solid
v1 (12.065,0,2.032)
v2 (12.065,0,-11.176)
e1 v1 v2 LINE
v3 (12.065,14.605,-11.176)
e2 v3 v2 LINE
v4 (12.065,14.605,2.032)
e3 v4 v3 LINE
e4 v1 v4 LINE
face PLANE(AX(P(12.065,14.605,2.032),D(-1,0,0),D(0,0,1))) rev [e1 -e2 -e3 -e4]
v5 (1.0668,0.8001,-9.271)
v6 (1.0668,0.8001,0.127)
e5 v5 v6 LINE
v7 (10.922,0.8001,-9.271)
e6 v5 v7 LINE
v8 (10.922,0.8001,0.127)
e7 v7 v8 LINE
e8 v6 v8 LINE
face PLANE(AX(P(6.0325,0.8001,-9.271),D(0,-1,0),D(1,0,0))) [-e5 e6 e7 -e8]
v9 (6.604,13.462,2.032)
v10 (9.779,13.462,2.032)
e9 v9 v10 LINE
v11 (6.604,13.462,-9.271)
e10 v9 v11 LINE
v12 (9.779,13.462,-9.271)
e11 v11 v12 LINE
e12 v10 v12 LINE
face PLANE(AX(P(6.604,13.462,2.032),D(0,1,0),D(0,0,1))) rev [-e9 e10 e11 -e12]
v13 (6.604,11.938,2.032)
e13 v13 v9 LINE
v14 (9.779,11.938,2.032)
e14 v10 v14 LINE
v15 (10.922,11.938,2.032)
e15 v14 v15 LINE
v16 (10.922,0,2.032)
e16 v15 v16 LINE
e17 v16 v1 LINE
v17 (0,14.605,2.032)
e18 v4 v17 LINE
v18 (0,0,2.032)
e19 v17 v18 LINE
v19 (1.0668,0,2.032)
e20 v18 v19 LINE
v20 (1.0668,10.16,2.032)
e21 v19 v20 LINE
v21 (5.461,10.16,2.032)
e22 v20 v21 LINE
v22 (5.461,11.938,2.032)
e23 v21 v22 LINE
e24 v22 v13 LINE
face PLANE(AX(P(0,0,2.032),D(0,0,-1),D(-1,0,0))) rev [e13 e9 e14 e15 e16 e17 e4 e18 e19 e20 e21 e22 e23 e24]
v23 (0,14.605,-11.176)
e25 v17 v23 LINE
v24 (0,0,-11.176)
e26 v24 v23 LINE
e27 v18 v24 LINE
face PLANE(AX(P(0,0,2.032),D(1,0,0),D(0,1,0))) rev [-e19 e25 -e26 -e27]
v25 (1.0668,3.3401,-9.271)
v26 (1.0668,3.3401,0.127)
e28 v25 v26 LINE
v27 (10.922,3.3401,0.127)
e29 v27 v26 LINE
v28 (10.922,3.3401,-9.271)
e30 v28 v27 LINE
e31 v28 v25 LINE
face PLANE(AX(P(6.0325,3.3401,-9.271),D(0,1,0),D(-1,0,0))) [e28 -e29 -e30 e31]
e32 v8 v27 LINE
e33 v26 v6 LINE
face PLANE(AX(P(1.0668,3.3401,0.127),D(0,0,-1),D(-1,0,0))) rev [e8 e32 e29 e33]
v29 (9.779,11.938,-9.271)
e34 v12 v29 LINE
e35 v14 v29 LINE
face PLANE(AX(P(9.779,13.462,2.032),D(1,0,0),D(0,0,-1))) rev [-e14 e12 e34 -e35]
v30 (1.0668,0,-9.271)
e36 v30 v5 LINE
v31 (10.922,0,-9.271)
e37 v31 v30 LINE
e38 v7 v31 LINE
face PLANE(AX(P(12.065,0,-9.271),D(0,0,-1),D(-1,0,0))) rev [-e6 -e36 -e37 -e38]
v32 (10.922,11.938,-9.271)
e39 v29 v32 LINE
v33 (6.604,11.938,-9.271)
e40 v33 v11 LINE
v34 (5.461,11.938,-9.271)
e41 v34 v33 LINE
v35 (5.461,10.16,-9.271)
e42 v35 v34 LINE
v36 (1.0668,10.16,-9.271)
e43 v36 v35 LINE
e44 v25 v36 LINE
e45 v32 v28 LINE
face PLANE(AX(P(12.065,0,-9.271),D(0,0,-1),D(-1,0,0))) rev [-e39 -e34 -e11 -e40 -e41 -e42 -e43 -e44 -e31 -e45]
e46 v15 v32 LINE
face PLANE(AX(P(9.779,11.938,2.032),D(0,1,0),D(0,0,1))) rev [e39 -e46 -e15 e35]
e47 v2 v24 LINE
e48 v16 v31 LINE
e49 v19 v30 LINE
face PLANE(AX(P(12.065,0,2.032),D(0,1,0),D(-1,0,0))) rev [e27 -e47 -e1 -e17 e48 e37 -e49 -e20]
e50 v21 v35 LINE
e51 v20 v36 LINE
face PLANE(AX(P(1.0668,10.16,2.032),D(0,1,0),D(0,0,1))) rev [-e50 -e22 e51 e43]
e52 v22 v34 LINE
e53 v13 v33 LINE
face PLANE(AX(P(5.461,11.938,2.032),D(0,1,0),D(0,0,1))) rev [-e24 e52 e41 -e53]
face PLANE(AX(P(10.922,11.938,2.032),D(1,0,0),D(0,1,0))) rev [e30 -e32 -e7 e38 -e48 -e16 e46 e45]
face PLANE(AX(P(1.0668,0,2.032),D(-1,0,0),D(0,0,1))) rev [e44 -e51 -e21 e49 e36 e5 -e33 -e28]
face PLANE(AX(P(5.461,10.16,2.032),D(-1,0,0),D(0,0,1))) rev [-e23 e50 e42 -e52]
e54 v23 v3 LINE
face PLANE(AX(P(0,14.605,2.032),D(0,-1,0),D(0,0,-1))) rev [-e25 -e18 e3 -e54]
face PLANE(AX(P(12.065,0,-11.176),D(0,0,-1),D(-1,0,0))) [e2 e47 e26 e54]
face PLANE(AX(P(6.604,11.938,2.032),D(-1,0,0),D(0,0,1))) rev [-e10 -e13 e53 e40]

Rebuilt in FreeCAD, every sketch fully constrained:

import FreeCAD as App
import Part
import Sketcher
Q = App.Units.Quantity

doc = App.newDocument("Part")
body = doc.addObject("PartDesign::Body", "Body")

# Sketch on XY plane
sketch1 = doc.addObject("Sketcher::SketchObject", "Sketch")
body.addObject(sketch1)
sketch1.AttachmentSupport = (doc.XY_Plane, [""])
sketch1.MapMode = "FlatFace"
sketch1.addGeometry([
    Part.LineSegment(App.Vector(0, 14.605, 0), App.Vector(0, 0, 0)),  # 0
    Part.LineSegment(App.Vector(0, 0, 0), App.Vector(1.0668, 0, 0)),  # 1
    Part.LineSegment(App.Vector(1.0668, 0, 0), App.Vector(1.0668, 10.16, 0)),  # 2
    Part.LineSegment(App.Vector(1.0668, 10.16, 0), App.Vector(5.461, 10.16, 0)),  # 3
    Part.LineSegment(App.Vector(5.461, 10.16, 0), App.Vector(5.461, 11.938, 0)),  # 4
    Part.LineSegment(App.Vector(5.461, 11.938, 0), App.Vector(6.604, 11.938, 0)),  # 5
    Part.LineSegment(App.Vector(6.604, 11.938, 0), App.Vector(6.604, 13.462, 0)),  # 6
    Part.LineSegment(App.Vector(6.604, 13.462, 0), App.Vector(9.779, 13.462, 0)),  # 7
    Part.LineSegment(App.Vector(9.779, 13.462, 0), App.Vector(9.779, 11.938, 0)),  # 8
    Part.LineSegment(App.Vector(9.779, 11.938, 0), App.Vector(10.922, 11.938, 0)),  # 9
    Part.LineSegment(App.Vector(10.922, 11.938, 0), App.Vector(10.922, 0, 0)),  # 10
    Part.LineSegment(App.Vector(10.922, 0, 0), App.Vector(12.065, 0, 0)),  # 11
    Part.LineSegment(App.Vector(12.065, 0, 0), App.Vector(12.065, 14.605, 0)),  # 12
    Part.LineSegment(App.Vector(12.065, 14.605, 0), App.Vector(0, 14.605, 0)),  # 13
], False)
sketch1.addConstraint([
    Sketcher.Constraint("Coincident", 0, 2, 1, 1),
    Sketcher.Constraint("Coincident", 1, 2, 2, 1),
    Sketcher.Constraint("Coincident", 2, 2, 3, 1),
    Sketcher.Constraint("Coincident", 3, 2, 4, 1),
    Sketcher.Constraint("Coincident", 4, 2, 5, 1),
    Sketcher.Constraint("Coincident", 5, 2, 6, 1),
    Sketcher.Constraint("Coincident", 6, 2, 7, 1),
    Sketcher.Constraint("Coincident", 7, 2, 8, 1),
    Sketcher.Constraint("Coincident", 8, 2, 9, 1),
    Sketcher.Constraint("Coincident", 9, 2, 10, 1),
    Sketcher.Constraint("Coincident", 10, 2, 11, 1),
    Sketcher.Constraint("Coincident", 11, 2, 12, 1),
    Sketcher.Constraint("Coincident", 12, 2, 13, 1),
    Sketcher.Constraint("Coincident", 13, 2, 0, 1),
    Sketcher.Constraint("Vertical", 0),
    Sketcher.Constraint("Horizontal", 1),
    Sketcher.Constraint("Vertical", 2),
    Sketcher.Constraint("Horizontal", 3),
    Sketcher.Constraint("Vertical", 4),
    Sketcher.Constraint("Horizontal", 5),
    Sketcher.Constraint("Vertical", 6),
    Sketcher.Constraint("Horizontal", 7),
    Sketcher.Constraint("Vertical", 8),
    Sketcher.Constraint("Horizontal", 9),
    Sketcher.Constraint("Vertical", 10),
    Sketcher.Constraint("Horizontal", 11),
    Sketcher.Constraint("Vertical", 12),
    Sketcher.Constraint("Horizontal", 13),
    Sketcher.Constraint("Coincident", 0, 2, -1, 1),
    Sketcher.Constraint("PointOnObject", 10, 2, -1),
    Sketcher.Constraint("Horizontal", 5, 2, 8, 2),
    Sketcher.Constraint("Equal", 5, 9),
    Sketcher.Constraint("Equal", 9, 11),
    Sketcher.Constraint("DistanceY", 2, 1, 2, 2, Q("0.4 in")),
    Sketcher.Constraint("DistanceY", 4, 1, 4, 2, Q("0.07 in")),
    Sketcher.Constraint("DistanceY", 6, 1, 6, 2, Q("0.06 in")),
    Sketcher.Constraint("DistanceX", 1, 1, 1, 2, Q("0.042 in")),
    Sketcher.Constraint("DistanceX", 3, 1, 3, 2, Q("0.173 in")),
    Sketcher.Constraint("DistanceX", 5, 1, 5, 2, Q("0.045 in")),
    Sketcher.Constraint("DistanceX", 7, 1, 7, 2, Q("0.125 in")),
    Sketcher.Constraint("DistanceY", 0, 2, 0, 1, Q("0.575 in")),
])
pad1 = doc.addObject("PartDesign::Pad", "Pad")
body.addObject(pad1)
pad1.Profile = sketch1
pad1.Length = Q("0.08 in")

# Sketch on XY plane
sketch2 = doc.addObject("Sketcher::SketchObject", "Sketch001")
body.addObject(sketch2)
sketch2.AttachmentSupport = (doc.XY_Plane, [""])
sketch2.MapMode = "FlatFace"
sketch2.AttachmentOffset = App.Placement(App.Vector(0, 0, 0.08 * 25.4), App.Rotation())
sketch2.addGeometry([
    Part.LineSegment(App.Vector(0, 14.605, 0), App.Vector(0, 0, 0)),  # 0
    Part.LineSegment(App.Vector(0, 0, 0), App.Vector(1.0668, 0, 0)),  # 1
    Part.LineSegment(App.Vector(1.0668, 0, 0), App.Vector(1.0668, 0.8001, 0)),  # 2
    Part.LineSegment(App.Vector(1.0668, 0.8001, 0), App.Vector(10.922, 0.8001, 0)),  # 3
    Part.LineSegment(App.Vector(10.922, 0.8001, 0), App.Vector(10.922, 0, 0)),  # 4
    Part.LineSegment(App.Vector(10.922, 0, 0), App.Vector(12.065, 0, 0)),  # 5
    Part.LineSegment(App.Vector(12.065, 0, 0), App.Vector(12.065, 14.605, 0)),  # 6
    Part.LineSegment(App.Vector(12.065, 14.605, 0), App.Vector(0, 14.605, 0)),  # 7
    Part.LineSegment(App.Vector(1.0668, 3.3401, 0), App.Vector(1.0668, 10.16, 0)),  # 8
    Part.LineSegment(App.Vector(1.0668, 10.16, 0), App.Vector(5.461, 10.16, 0)),  # 9
    Part.LineSegment(App.Vector(5.461, 10.16, 0), App.Vector(5.461, 11.938, 0)),  # 10
    Part.LineSegment(App.Vector(5.461, 11.938, 0), App.Vector(6.604, 11.938, 0)),  # 11
    Part.LineSegment(App.Vector(6.604, 11.938, 0), App.Vector(6.604, 13.462, 0)),  # 12
    Part.LineSegment(App.Vector(6.604, 13.462, 0), App.Vector(9.779, 13.462, 0)),  # 13
    Part.LineSegment(App.Vector(9.779, 13.462, 0), App.Vector(9.779, 11.938, 0)),  # 14
    Part.LineSegment(App.Vector(9.779, 11.938, 0), App.Vector(10.922, 11.938, 0)),  # 15
    Part.LineSegment(App.Vector(10.922, 11.938, 0), App.Vector(10.922, 3.3401, 0)),  # 16
    Part.LineSegment(App.Vector(10.922, 3.3401, 0), App.Vector(1.0668, 3.3401, 0)),  # 17
], False)
sketch2.addConstraint([
    Sketcher.Constraint("Coincident", 0, 2, 1, 1),
    Sketcher.Constraint("Coincident", 1, 2, 2, 1),
    Sketcher.Constraint("Coincident", 2, 2, 3, 1),
    Sketcher.Constraint("Coincident", 3, 2, 4, 1),
    Sketcher.Constraint("Coincident", 4, 2, 5, 1),
    Sketcher.Constraint("Coincident", 5, 2, 6, 1),
    Sketcher.Constraint("Coincident", 6, 2, 7, 1),
    Sketcher.Constraint("Coincident", 7, 2, 0, 1),
    Sketcher.Constraint("Coincident", 8, 2, 9, 1),
    Sketcher.Constraint("Coincident", 9, 2, 10, 1),
    Sketcher.Constraint("Coincident", 10, 2, 11, 1),
    Sketcher.Constraint("Coincident", 11, 2, 12, 1),
    Sketcher.Constraint("Coincident", 12, 2, 13, 1),
    Sketcher.Constraint("Coincident", 13, 2, 14, 1),
    Sketcher.Constraint("Coincident", 14, 2, 15, 1),
    Sketcher.Constraint("Coincident", 15, 2, 16, 1),
    Sketcher.Constraint("Coincident", 16, 2, 17, 1),
    Sketcher.Constraint("Coincident", 17, 2, 8, 1),
    Sketcher.Constraint("Vertical", 0),
    Sketcher.Constraint("Horizontal", 1),
    Sketcher.Constraint("Vertical", 2),
    Sketcher.Constraint("Horizontal", 3),
    Sketcher.Constraint("Vertical", 4),
    Sketcher.Constraint("Horizontal", 5),
    Sketcher.Constraint("Vertical", 6),
    Sketcher.Constraint("Horizontal", 7),
    Sketcher.Constraint("Vertical", 8),
    Sketcher.Constraint("Horizontal", 9),
    Sketcher.Constraint("Vertical", 10),
    Sketcher.Constraint("Horizontal", 11),
    Sketcher.Constraint("Vertical", 12),
    Sketcher.Constraint("Horizontal", 13),
    Sketcher.Constraint("Vertical", 14),
    Sketcher.Constraint("Horizontal", 15),
    Sketcher.Constraint("Vertical", 16),
    Sketcher.Constraint("Horizontal", 17),
    Sketcher.Constraint("Coincident", 0, 2, -1, 1),
    Sketcher.Constraint("PointOnObject", 4, 2, -1),
    Sketcher.Constraint("Horizontal", 11, 2, 14, 2),
    Sketcher.Constraint("Vertical", 2, 2, 8, 2),
    Sketcher.Constraint("Vertical", 4, 2, 15, 2),
    Sketcher.Constraint("Equal", 5, 11),
    Sketcher.Constraint("Equal", 11, 15),
    Sketcher.Constraint("DistanceY", 10, 1, 10, 2, Q("0.07 in")),
    Sketcher.Constraint("DistanceY", 12, 1, 12, 2, Q("0.06 in")),
    Sketcher.Constraint("DistanceY", -1, 1, 8, 2, Q("0.4 in")),
    Sketcher.Constraint("DistanceY", 3, 2, 16, 2, Q("0.1 in")),
    Sketcher.Constraint("DistanceX", 1, 1, 1, 2, Q("0.042 in")),
    Sketcher.Constraint("DistanceX", 3, 1, 3, 2, Q("0.388 in")),
    Sketcher.Constraint("DistanceX", 5, 1, 5, 2, Q("0.045 in")),
    Sketcher.Constraint("DistanceX", 9, 1, 9, 2, Q("0.173 in")),
    Sketcher.Constraint("DistanceY", 0, 2, 0, 1, Q("0.575 in")),
    Sketcher.Constraint("DistanceY", 2, 1, 2, 2, Q("0.0315 in")),
])
pad2 = doc.addObject("PartDesign::Pad", "Pad001")
body.addObject(pad2)
pad2.Profile = sketch2
pad2.Length = Q("0.445 in")
pad2.Reversed = True

# Sketch on XY plane
sketch3 = doc.addObject("Sketcher::SketchObject", "Sketch002")
body.addObject(sketch3)
sketch3.AttachmentSupport = (doc.XY_Plane, [""])
sketch3.MapMode = "FlatFace"
sketch3.AttachmentOffset = App.Placement(App.Vector(0, 0, 0.08 * 25.4), App.Rotation())
sketch3.addGeometry([
    Part.LineSegment(App.Vector(1.0668, 3.3401, 0), App.Vector(1.0668, 0.8001, 0)),
    Part.LineSegment(App.Vector(1.0668, 0.8001, 0), App.Vector(10.922, 0.8001, 0)),
    Part.LineSegment(App.Vector(10.922, 0.8001, 0), App.Vector(10.922, 3.3401, 0)),
    Part.LineSegment(App.Vector(10.922, 3.3401, 0), App.Vector(1.0668, 3.3401, 0)),
], False)
sketch3.addConstraint([
    Sketcher.Constraint("Coincident", 0, 2, 1, 1),
    Sketcher.Constraint("Coincident", 1, 2, 2, 1),
    Sketcher.Constraint("Coincident", 2, 2, 3, 1),
    Sketcher.Constraint("Coincident", 3, 2, 0, 1),
    Sketcher.Constraint("Vertical", 0),
    Sketcher.Constraint("Horizontal", 1),
    Sketcher.Constraint("Vertical", 2),
    Sketcher.Constraint("Horizontal", 3),
    Sketcher.Constraint("DistanceY", 0, 2, 0, 1, Q("0.1 in")),
    Sketcher.Constraint("DistanceX", 1, 1, 1, 2, Q("0.388 in")),
    Sketcher.Constraint("DistanceX", -1, 1, 1, 2, Q("0.43 in")),
    Sketcher.Constraint("DistanceY", -1, 1, 0, 2, Q("0.0315 in")),
])
pocket1 = doc.addObject("PartDesign::Pocket", "Pocket")
body.addObject(pocket1)
pocket1.Profile = sketch3
pocket1.Length = Q("0.075 in")

# Sketch on XY plane
sketch4 = doc.addObject("Sketcher::SketchObject", "Sketch003")
body.addObject(sketch4)
sketch4.AttachmentSupport = (doc.XY_Plane, [""])
sketch4.MapMode = "FlatFace"
sketch4.AttachmentOffset = App.Placement(App.Vector(0, 0, -0.365 * 25.4), App.Rotation())
sketch4.addGeometry([
    Part.LineSegment(App.Vector(12.065, 14.605, 0), App.Vector(12.065, 0, 0)),
    Part.LineSegment(App.Vector(12.065, 0, 0), App.Vector(0, 0, 0)),
    Part.LineSegment(App.Vector(0, 0, 0), App.Vector(0, 14.605, 0)),
    Part.LineSegment(App.Vector(0, 14.605, 0), App.Vector(12.065, 14.605, 0)),
], False)
sketch4.addConstraint([
    Sketcher.Constraint("Coincident", 0, 2, 1, 1),
    Sketcher.Constraint("Coincident", 1, 2, 2, 1),
    Sketcher.Constraint("Coincident", 2, 2, 3, 1),
    Sketcher.Constraint("Coincident", 3, 2, 0, 1),
    Sketcher.Constraint("Vertical", 0),
    Sketcher.Constraint("Horizontal", 1),
    Sketcher.Constraint("Vertical", 2),
    Sketcher.Constraint("Horizontal", 3),
    Sketcher.Constraint("Coincident", 1, 2, -1, 1),
    Sketcher.Constraint("DistanceX", 1, 2, 1, 1, Q("0.475 in")),
    Sketcher.Constraint("DistanceY", 0, 2, 0, 1, Q("0.575 in")),
])
pad3 = doc.addObject("PartDesign::Pad", "Pad002")
body.addObject(pad3)
pad3.Profile = sketch4
pad3.Length = Q("0.075 in")
pad3.Reversed = True

doc.recompute()
